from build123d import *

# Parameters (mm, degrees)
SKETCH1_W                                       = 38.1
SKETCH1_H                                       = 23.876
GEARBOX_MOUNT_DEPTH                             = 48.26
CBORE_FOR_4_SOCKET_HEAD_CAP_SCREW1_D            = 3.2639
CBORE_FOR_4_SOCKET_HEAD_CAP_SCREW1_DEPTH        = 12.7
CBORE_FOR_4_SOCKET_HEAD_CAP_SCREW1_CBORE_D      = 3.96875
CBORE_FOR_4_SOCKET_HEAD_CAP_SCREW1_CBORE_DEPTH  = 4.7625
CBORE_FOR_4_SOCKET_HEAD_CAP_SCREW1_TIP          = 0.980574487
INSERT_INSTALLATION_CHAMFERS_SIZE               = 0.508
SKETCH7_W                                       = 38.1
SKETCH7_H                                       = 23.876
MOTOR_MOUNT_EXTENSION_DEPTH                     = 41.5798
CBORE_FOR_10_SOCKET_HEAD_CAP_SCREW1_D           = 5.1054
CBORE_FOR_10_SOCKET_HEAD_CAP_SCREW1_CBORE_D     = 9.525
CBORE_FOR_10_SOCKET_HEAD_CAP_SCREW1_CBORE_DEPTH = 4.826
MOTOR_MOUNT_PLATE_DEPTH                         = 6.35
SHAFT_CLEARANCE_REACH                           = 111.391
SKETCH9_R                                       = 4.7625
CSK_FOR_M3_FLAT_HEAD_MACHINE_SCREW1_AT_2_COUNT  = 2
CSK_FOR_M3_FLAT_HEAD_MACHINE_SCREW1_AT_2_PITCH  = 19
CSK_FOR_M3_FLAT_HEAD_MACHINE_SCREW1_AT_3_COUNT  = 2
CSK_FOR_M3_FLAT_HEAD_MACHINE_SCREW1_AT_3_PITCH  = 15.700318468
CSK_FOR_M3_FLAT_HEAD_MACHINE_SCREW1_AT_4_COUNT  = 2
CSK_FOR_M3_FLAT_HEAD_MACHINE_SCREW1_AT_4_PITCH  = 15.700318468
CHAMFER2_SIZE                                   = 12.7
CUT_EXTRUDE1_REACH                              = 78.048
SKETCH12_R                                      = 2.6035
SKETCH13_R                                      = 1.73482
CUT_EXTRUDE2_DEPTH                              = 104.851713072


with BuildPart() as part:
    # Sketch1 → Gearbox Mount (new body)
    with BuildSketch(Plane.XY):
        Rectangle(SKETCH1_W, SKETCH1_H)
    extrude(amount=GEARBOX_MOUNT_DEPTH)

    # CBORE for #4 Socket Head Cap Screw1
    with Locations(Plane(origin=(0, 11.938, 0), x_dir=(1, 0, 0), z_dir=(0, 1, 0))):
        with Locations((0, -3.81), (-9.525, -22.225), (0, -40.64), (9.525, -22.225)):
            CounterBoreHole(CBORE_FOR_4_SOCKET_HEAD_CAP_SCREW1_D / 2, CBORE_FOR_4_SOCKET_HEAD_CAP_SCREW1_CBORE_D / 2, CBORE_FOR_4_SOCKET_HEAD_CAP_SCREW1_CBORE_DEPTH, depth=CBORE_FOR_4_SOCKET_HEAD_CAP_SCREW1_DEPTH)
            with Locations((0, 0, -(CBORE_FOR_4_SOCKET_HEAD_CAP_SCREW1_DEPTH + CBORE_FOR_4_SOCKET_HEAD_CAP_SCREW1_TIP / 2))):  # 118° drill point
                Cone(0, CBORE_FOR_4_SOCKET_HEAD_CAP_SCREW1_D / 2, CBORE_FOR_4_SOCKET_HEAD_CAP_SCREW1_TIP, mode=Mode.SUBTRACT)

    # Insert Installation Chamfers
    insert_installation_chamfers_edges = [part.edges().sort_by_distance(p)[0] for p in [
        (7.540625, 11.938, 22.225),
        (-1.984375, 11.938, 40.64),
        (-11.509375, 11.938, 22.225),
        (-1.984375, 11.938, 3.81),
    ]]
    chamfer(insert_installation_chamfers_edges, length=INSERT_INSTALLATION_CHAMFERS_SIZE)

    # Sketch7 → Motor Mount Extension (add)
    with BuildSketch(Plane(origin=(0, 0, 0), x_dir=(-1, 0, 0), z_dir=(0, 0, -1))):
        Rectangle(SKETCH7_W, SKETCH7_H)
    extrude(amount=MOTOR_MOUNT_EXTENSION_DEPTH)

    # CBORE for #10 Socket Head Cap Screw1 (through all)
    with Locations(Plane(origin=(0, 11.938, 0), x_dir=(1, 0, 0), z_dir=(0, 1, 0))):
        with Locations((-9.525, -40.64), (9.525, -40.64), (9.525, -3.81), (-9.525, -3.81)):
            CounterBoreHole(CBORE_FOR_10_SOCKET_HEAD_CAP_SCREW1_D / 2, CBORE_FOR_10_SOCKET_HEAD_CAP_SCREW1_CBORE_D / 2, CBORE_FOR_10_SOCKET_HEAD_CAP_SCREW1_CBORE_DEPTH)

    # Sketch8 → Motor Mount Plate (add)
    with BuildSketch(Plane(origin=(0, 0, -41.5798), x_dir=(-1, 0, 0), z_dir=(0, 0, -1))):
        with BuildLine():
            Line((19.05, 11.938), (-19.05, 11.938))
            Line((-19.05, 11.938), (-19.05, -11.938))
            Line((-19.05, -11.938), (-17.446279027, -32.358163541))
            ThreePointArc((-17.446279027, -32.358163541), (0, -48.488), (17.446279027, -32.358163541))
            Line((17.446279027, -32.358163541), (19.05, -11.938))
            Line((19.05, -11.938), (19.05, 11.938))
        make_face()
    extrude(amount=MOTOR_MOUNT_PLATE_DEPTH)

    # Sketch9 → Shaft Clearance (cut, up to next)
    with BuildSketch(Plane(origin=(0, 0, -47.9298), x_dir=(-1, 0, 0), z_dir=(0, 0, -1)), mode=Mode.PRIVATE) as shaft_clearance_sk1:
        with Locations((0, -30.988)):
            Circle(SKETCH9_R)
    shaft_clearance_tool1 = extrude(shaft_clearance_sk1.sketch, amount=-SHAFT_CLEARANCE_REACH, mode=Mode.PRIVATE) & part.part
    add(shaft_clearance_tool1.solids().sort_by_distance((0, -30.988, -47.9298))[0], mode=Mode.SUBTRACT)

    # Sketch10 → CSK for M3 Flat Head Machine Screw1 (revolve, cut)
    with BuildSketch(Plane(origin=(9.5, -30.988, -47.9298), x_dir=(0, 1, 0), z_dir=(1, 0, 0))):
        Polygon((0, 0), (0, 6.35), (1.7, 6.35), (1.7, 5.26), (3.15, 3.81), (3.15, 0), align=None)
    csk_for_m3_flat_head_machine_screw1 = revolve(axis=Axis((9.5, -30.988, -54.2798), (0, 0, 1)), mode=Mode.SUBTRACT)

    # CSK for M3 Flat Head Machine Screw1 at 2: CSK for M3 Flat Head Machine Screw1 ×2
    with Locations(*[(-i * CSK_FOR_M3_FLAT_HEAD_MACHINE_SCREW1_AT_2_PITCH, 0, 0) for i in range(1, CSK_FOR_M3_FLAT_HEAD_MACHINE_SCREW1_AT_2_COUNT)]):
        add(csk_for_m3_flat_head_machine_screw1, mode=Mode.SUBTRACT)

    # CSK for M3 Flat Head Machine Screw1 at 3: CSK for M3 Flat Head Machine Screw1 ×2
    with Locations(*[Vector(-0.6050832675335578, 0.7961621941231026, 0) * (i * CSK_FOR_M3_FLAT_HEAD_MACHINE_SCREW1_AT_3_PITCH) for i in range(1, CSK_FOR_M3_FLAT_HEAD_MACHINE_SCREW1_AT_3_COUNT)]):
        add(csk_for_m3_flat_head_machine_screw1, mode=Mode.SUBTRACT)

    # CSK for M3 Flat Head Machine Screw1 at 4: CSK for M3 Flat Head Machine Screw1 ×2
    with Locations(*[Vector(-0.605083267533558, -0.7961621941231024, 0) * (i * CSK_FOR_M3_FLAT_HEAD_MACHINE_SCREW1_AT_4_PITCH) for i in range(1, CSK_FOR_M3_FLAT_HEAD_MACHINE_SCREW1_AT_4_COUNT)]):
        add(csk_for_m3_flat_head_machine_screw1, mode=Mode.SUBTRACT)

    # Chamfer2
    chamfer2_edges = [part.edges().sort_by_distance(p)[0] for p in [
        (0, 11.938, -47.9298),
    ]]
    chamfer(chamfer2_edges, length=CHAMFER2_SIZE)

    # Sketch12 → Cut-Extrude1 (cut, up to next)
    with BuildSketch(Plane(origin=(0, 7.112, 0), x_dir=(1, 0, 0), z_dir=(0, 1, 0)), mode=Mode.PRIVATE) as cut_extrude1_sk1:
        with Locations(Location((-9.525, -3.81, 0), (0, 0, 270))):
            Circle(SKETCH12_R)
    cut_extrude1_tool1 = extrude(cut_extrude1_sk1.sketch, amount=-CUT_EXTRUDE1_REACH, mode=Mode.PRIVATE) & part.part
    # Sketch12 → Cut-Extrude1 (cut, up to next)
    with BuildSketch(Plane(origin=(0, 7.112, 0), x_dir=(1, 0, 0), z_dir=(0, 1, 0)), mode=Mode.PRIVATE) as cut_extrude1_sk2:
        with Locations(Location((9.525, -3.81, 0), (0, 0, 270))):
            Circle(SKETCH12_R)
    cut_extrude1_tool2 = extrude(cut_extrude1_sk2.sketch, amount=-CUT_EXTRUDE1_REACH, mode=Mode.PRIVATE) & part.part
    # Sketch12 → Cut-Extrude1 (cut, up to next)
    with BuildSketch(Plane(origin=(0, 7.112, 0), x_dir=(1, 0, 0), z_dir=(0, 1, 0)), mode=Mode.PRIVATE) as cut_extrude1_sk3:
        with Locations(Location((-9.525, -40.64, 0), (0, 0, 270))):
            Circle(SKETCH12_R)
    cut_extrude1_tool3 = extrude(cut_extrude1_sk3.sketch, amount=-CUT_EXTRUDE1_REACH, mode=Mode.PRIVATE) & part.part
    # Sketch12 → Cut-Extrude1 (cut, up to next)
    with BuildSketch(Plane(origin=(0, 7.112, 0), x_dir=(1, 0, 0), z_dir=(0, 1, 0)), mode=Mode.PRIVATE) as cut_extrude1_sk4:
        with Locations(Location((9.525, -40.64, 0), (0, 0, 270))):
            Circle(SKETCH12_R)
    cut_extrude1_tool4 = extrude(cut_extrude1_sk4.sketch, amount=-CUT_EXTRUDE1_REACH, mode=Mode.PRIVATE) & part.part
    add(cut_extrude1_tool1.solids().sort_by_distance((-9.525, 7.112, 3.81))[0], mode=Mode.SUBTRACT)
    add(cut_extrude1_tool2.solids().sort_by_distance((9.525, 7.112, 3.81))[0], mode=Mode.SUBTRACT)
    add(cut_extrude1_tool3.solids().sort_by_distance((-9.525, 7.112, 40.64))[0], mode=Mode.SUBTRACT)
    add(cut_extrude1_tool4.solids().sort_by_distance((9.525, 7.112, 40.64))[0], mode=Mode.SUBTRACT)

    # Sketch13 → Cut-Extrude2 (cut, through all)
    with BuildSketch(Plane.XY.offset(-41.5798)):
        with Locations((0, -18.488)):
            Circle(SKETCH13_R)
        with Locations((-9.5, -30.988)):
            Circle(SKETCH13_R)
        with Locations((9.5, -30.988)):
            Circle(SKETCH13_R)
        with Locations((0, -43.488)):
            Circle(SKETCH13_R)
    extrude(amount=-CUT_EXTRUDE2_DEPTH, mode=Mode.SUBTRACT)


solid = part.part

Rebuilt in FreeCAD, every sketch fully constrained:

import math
import FreeCAD as App
import Part
import Sketcher
from FreeCAD import Vector
Q = App.Units.Quantity


def edges_at(feature, points):
    """Names of the edges that pass closest to the given points."""
    edges = feature.Shape.Edges
    near = lambda p: min(range(len(edges)), key=lambda i: edges[i].distToShape(Part.Vertex(*p))[0])
    return sorted({f"Edge{near(p) + 1}" for p in points})


def add_polygon(sketch, points):
    """Adds a closed chain of lines whose ends are joined by coincident constraints."""
    first, n = sketch.GeometryCount, len(points)
    for a, b in zip(points, points[1:] + points[:1]):
        sketch.addGeometry(Part.LineSegment(App.Vector(*a, 0), App.Vector(*b, 0)), False)
    for i in range(n):
        sketch.addConstraint(Sketcher.Constraint("Coincident", first + i, 2, first + (i + 1) % n, 1))

doc = App.newDocument("Part")
body = doc.addObject("PartDesign::Body", "Body")

# Sketch on XY plane
sketch1 = body.newObject("Sketcher::SketchObject", "Sketch")
sketch1.AttachmentSupport = (doc.getObject("XY_Plane"), [""])
sketch1.MapMode = "FlatFace"
add_polygon(sketch1, [(-19.05, 11.938), (-19.05, -11.938), (19.05, -11.938), (19.05, 11.938)])  # lines 0-3
sketch1.addConstraint([
    Sketcher.Constraint("Vertical", 0),
    Sketcher.Constraint("Horizontal", 1),
    Sketcher.Constraint("Vertical", 2),
    Sketcher.Constraint("Horizontal", 3),
    Sketcher.Constraint("Symmetric", 0, 2, 2, 2, -1, 1),
    Sketcher.Constraint("DistanceX", 1, 1, 1, 2, Q("1.5 in")),
    Sketcher.Constraint("DistanceY", 0, 2, 0, 1, Q("0.94 in")),
])
pad1 = body.newObject("PartDesign::Pad", "Pad")
pad1.Profile = sketch1
pad1.Length = Q("1.9 in")

# Sketch on XZ plane
sketch2 = body.newObject("Sketcher::SketchObject", "Sketch001")
sketch2.AttachmentSupport = (doc.getObject("XZ_Plane"), [""])
sketch2.MapMode = "FlatFace"
sketch2.AttachmentOffset = App.Placement(Vector(0, 0, -0.47 * 25.4), App.Rotation())
sketch2.addGeometry([
    Part.Circle(Vector(0, 3.81, 0), Vector(0, 0, 1), 1.63195),
    Part.Circle(Vector(-9.525, 22.225, 0), Vector(0, 0, 1), 1.63195),
    Part.Circle(Vector(0, 40.64, 0), Vector(0, 0, 1), 1.63195),
    Part.Circle(Vector(9.525, 22.225, 0), Vector(0, 0, 1), 1.63195),
], False)
sketch2.addConstraint([
    Sketcher.Constraint("Equal", 0, 1),
    Sketcher.Constraint("Equal", 1, 2),
    Sketcher.Constraint("Equal", 2, 3),
    Sketcher.Constraint("Symmetric", 1, 3, 3, 3, -2),
    Sketcher.Constraint("PointOnObject", 0, 3, -2),
    Sketcher.Constraint("PointOnObject", 2, 3, -2),
    Sketcher.Constraint("Diameter", 0, Q("0.1285 in")),
    Sketcher.Constraint("DistanceY", -1, 1, 2, 3, Q("1.6 in")),
    Sketcher.Constraint("DistanceY", -1, 1, 0, 3, Q("0.15 in")),
    Sketcher.Constraint("DistanceX", 1, 3, 3, 3, Q("0.75 in")),
    Sketcher.Constraint("DistanceY", -1, 1, 1, 3, Q("0.875 in")),
])
doc.recompute()
hole = body.newObject("PartDesign::Hole", "Hole")
hole.Profile = sketch2
hole.ThreadType = "None"
hole.Diameter = Q("0.1285 in")
hole.DepthType = "Dimension"
hole.Depth = Q("0.5 in")
hole.DrillPoint = "Angled"
hole.DrillPointAngle = 118
hole.HoleCutType = "Counterbore"
hole.HoleCutDiameter = Q("0.15625 in")
hole.HoleCutDepth = Q("0.1875 in")
hole.Reversed = True
doc.recompute()

chamfer = body.newObject("PartDesign::Chamfer", "Chamfer")
chamfer.Base = (hole, edges_at(hole, [
    (7.541, 11.938, 22.225),
    (-1.984, 11.938, 40.64),
    (-11.509, 11.938, 22.225),
    (-1.984, 11.938, 3.81),
]))
chamfer.Size = Q("0.02 in")

# Sketch on XY plane
sketch3 = body.newObject("Sketcher::SketchObject", "Sketch002")
sketch3.AttachmentSupport = (doc.getObject("XY_Plane"), [""])
sketch3.MapMode = "FlatFace"
add_polygon(sketch3, [(19.05, 11.938), (19.05, -11.938), (-19.05, -11.938), (-19.05, 11.938)])  # lines 0-3
sketch3.addConstraint([
    Sketcher.Constraint("Vertical", 0),
    Sketcher.Constraint("Horizontal", 1),
    Sketcher.Constraint("Vertical", 2),
    Sketcher.Constraint("Horizontal", 3),
    Sketcher.Constraint("Symmetric", 0, 2, 2, 2, -1, 1),
    Sketcher.Constraint("DistanceX", 1, 2, 1, 1, Q("1.5 in")),
    Sketcher.Constraint("DistanceY", 0, 2, 0, 1, Q("0.94 in")),
])
pad2 = body.newObject("PartDesign::Pad", "Pad001")
pad2.Profile = sketch3
pad2.Length = Q("1.637 in")
pad2.Reversed = True

# Sketch on XZ plane
sketch4 = body.newObject("Sketcher::SketchObject", "Sketch003")
sketch4.AttachmentSupport = (doc.getObject("XZ_Plane"), [""])
sketch4.MapMode = "FlatFace"
sketch4.AttachmentOffset = App.Placement(Vector(0, 0, -0.47 * 25.4), App.Rotation())
sketch4.addGeometry([
    Part.Circle(Vector(-9.525, 40.64, 0), Vector(0, 0, 1), 2.5527),
    Part.Circle(Vector(9.525, 40.64, 0), Vector(0, 0, 1), 2.5527),
    Part.Circle(Vector(9.525, 3.81, 0), Vector(0, 0, 1), 2.5527),
    Part.Circle(Vector(-9.525, 3.81, 0), Vector(0, 0, 1), 2.5527),
], False)
sketch4.addConstraint([
    Sketcher.Constraint("Equal", 0, 1),
    Sketcher.Constraint("Equal", 1, 2),
    Sketcher.Constraint("Equal", 2, 3),
    Sketcher.Constraint("Symmetric", 0, 3, 1, 3, -2),
    Sketcher.Constraint("Symmetric", 2, 3, 3, 3, -2),
    Sketcher.Constraint("Vertical", 1, 3, 2, 3),
    Sketcher.Constraint("Diameter", 0, Q("0.201 in")),
    Sketcher.Constraint("DistanceY", -1, 1, 0, 3, Q("1.6 in")),
    Sketcher.Constraint("DistanceY", -1, 1, 2, 3, Q("0.15 in")),
    Sketcher.Constraint("DistanceX", 0, 3, 1, 3, Q("0.75 in")),
])
doc.recompute()
hole2 = body.newObject("PartDesign::Hole", "Hole001")
hole2.Profile = sketch4
hole2.ThreadType = "None"
hole2.Diameter = Q("0.201 in")
hole2.DepthType = "ThroughAll"
hole2.HoleCutType = "Counterbore"
hole2.HoleCutDiameter = Q("0.375 in")
hole2.HoleCutDepth = Q("0.19 in")
hole2.Reversed = True

# Sketch on XY plane
sketch5 = body.newObject("Sketcher::SketchObject", "Sketch004")
sketch5.AttachmentSupport = (doc.getObject("XY_Plane"), [""])
sketch5.MapMode = "FlatFace"
sketch5.AttachmentOffset = App.Placement(Vector(0, 0, -1.637 * 25.4), App.Rotation())
sketch5.addGeometry([
    Part.LineSegment(Vector(-19.05, 11.938, 0), Vector(19.05, 11.938, 0)),  # 0
    Part.LineSegment(Vector(19.05, 11.938, 0), Vector(19.05, -11.938, 0)),  # 1
    Part.LineSegment(Vector(19.05, -11.938, 0), Vector(17.446279, -32.358164, 0)),  # 2
    Part.ArcOfCircle(Part.Circle(Vector(0, -30.988, 0), Vector(0, 0, 1), 17.5), math.radians(-175.509428), math.radians(-4.490572)),  # 3
    Part.LineSegment(Vector(-17.446279, -32.358164, 0), Vector(-19.05, -11.938, 0)),  # 4
    Part.LineSegment(Vector(-19.05, -11.938, 0), Vector(-19.05, 11.938, 0)),  # 5
], False)
sketch5.addConstraint([
    Sketcher.Constraint("Coincident", 0, 2, 1, 1),
    Sketcher.Constraint("Coincident", 1, 2, 2, 1),
    Sketcher.Constraint("Tangent", 2, 2, 3, 2),
    Sketcher.Constraint("Tangent", 3, 1, 4, 1),
    Sketcher.Constraint("Coincident", 4, 2, 5, 1),
    Sketcher.Constraint("Coincident", 5, 2, 0, 1),
    Sketcher.Constraint("Horizontal", 0),
    Sketcher.Constraint("Vertical", 1),
    Sketcher.Constraint("Vertical", 5),
    Sketcher.Constraint("Symmetric", 0, 2, 4, 2, -1, 1),
    Sketcher.Constraint("Symmetric", 2, 2, 3, 1, -2),
    Sketcher.Constraint("DistanceX", 0, 1, 0, 2, Q("1.5 in")),
    Sketcher.Constraint("DistanceY", 1, 2, 1, 1, Q("0.94 in")),
    Sketcher.Constraint("DistanceY", 3, 3, -1, 1, Q("1.22 in")),
    Sketcher.Constraint("Radius", 3, Q("17.5 mm")),
])
pad3 = body.newObject("PartDesign::Pad", "Pad002")
pad3.Profile = sketch5
pad3.Length = Q("0.25 in")
pad3.Reversed = True

# Sketch on XY plane
sketch6 = body.newObject("Sketcher::SketchObject", "Sketch005")
sketch6.AttachmentSupport = (doc.getObject("XY_Plane"), [""])
sketch6.MapMode = "FlatFace"
sketch6.AttachmentOffset = App.Placement(Vector(0, 0, -1.887 * 25.4), App.Rotation())
sketch6.addGeometry(Part.Circle(Vector(0, -30.988, 0), Vector(0, 0, 1), 4.7625), False)
sketch6.addConstraint([
    Sketcher.Constraint("PointOnObject", 0, 3, -2),
    Sketcher.Constraint("Diameter", 0, Q("0.375 in")),
    Sketcher.Constraint("DistanceY", 0, 3, -1, 1, Q("1.22 in")),
])
pocket1 = body.newObject("PartDesign::Pocket", "Pocket")
pocket1.Profile = sketch6
pocket1.Type = "UpToFirst"
pocket1.Reversed = True

# Sketch on YZ plane
sketch7 = body.newObject("Sketcher::SketchObject", "Sketch006")
sketch7.AttachmentSupport = (doc.getObject("YZ_Plane"), [""])
sketch7.MapMode = "FlatFace"
sketch7.AttachmentOffset = App.Placement(Vector(0, 0, 9.5), App.Rotation())
add_polygon(sketch7, [(-30.988, -41.5798), (-30.988, -47.9298), (-27.838, -47.9298), (-27.838, -44.1198), (-29.288, -42.6698), (-29.288, -41.5798)])  # lines 0-5
sketch7.addGeometry(Part.LineSegment(Vector(-30.988, -47.9298, 0), Vector(-30.988, -41.5798, 0)), True)  # axis
sketch7.addConstraint([
    Sketcher.Constraint("Vertical", 0),
    Sketcher.Constraint("Horizontal", 1),
    Sketcher.Constraint("Vertical", 2),
    Sketcher.Constraint("Vertical", 4),
    Sketcher.Constraint("Horizontal", 5),
    Sketcher.Constraint("Vertical", 6),
    Sketcher.Constraint("Coincident", 6, 1, 0, 2),
    Sketcher.Constraint("Horizontal", 4, 2, 6, 2),
    Sketcher.Constraint("Angle", 3, Q("135 deg")),
    Sketcher.Constraint("DistanceY", 0, 2, 0, 1, Q("0.25 in")),
    Sketcher.Constraint("DistanceY", 2, 1, 2, 2, Q("0.15 in")),
    Sketcher.Constraint("DistanceX", 0, 2, -1, 1, Q("1.22 in")),
    Sketcher.Constraint("DistanceY", 0, 2, -1, 1, Q("1.887 in")),
    Sketcher.Constraint("DistanceX", 1, 1, 1, 2, Q("3.15 mm")),
    Sketcher.Constraint("DistanceX", 5, 2, 5, 1, Q("1.7 mm")),
])
groove = body.newObject("PartDesign::Groove", "Groove")
groove.Profile = sketch7
groove.ReferenceAxis = (sketch7, ["Axis0"])
groove.Angle = 360
doc.recompute()

linearpattern = body.newObject("PartDesign::LinearPattern", "LinearPattern")
linearpattern.Originals = [groove]
linearpattern.Direction = (doc.getObject("X_Axis"), [""])
linearpattern.Mode = "offset"
linearpattern.Offset = 19
linearpattern.Occurrences = 2
linearpattern.Reversed = True
body.Tip = linearpattern
doc.recompute()

datumline = body.newObject("PartDesign::Line", "DatumLine")
datumline.Placement = App.Placement(Vector(0, 0, 0), App.Rotation(Vector(0, 0, 1), Vector(-0.605083268, 0.796162194, 0)))
linearpattern2 = body.newObject("PartDesign::LinearPattern", "LinearPattern001")
linearpattern2.Originals = [groove]
linearpattern2.Direction = (datumline, [""])
linearpattern2.Mode = "offset"
linearpattern2.Offset = 15.700318
linearpattern2.Occurrences = 2
body.Tip = linearpattern2
doc.recompute()

datumline2 = body.newObject("PartDesign::Line", "DatumLine001")
datumline2.Placement = App.Placement(Vector(0, 0, 0), App.Rotation(Vector(0, 0, 1), Vector(-0.605083268, -0.796162194, 0)))
linearpattern3 = body.newObject("PartDesign::LinearPattern", "LinearPattern002")
linearpattern3.Originals = [groove]
linearpattern3.Direction = (datumline2, [""])
linearpattern3.Mode = "offset"
linearpattern3.Offset = 15.700318
linearpattern3.Occurrences = 2
body.Tip = linearpattern3
doc.recompute()

chamfer2 = body.newObject("PartDesign::Chamfer", "Chamfer001")
chamfer2.Base = (linearpattern3, edges_at(linearpattern3, [(0, 11.938, -47.93)]))
chamfer2.Size = Q("0.5 in")

# Sketch on XZ plane
sketch8 = body.newObject("Sketcher::SketchObject", "Sketch007")
sketch8.AttachmentSupport = (doc.getObject("XZ_Plane"), [""])
sketch8.MapMode = "FlatFace"
sketch8.AttachmentOffset = App.Placement(Vector(0, 0, -0.28 * 25.4), App.Rotation())
sketch8.addGeometry(Part.Circle(Vector(-9.525, 3.81, 0), Vector(0, 0, 1), 2.6035), False)
sketch8.addConstraint([
    Sketcher.Constraint("Diameter", 0, Q("0.205 in")),
    Sketcher.Constraint("DistanceY", -1, 1, 0, 3, Q("0.15 in")),
    Sketcher.Constraint("DistanceX", 0, 3, -1, 1, Q("0.375 in")),
])
pocket2 = body.newObject("PartDesign::Pocket", "Pocket001")
pocket2.Profile = sketch8
pocket2.Length = Q("0.75 in")
pocket2.Reversed = True

# Sketch on XZ plane
sketch9 = body.newObject("Sketcher::SketchObject", "Sketch008")
sketch9.AttachmentSupport = (doc.getObject("XZ_Plane"), [""])
sketch9.MapMode = "FlatFace"
sketch9.AttachmentOffset = App.Placement(Vector(0, 0, -0.28 * 25.4), App.Rotation())
sketch9.addGeometry(Part.Circle(Vector(9.525, 3.81, 0), Vector(0, 0, 1), 2.6035), False)
sketch9.addConstraint([
    Sketcher.Constraint("Diameter", 0, Q("0.205 in")),
    Sketcher.Constraint("DistanceY", -1, 1, 0, 3, Q("0.15 in")),
    Sketcher.Constraint("DistanceX", -1, 1, 0, 3, Q("0.375 in")),
])
pocket3 = body.newObject("PartDesign::Pocket", "Pocket002")
pocket3.Profile = sketch9
pocket3.Length = Q("0.75 in")
pocket3.Reversed = True

# Sketch on XZ plane
sketch10 = body.newObject("Sketcher::SketchObject", "Sketch009")
sketch10.AttachmentSupport = (doc.getObject("XZ_Plane"), [""])
sketch10.MapMode = "FlatFace"
sketch10.AttachmentOffset = App.Placement(Vector(0, 0, -0.28 * 25.4), App.Rotation())
sketch10.addGeometry(Part.Circle(Vector(-9.525, 40.64, 0), Vector(0, 0, 1), 2.6035), False)
sketch10.addConstraint([
    Sketcher.Constraint("Diameter", 0, Q("0.205 in")),
    Sketcher.Constraint("DistanceY", -1, 1, 0, 3, Q("1.6 in")),
    Sketcher.Constraint("DistanceX", 0, 3, -1, 1, Q("0.375 in")),
])
pocket4 = body.newObject("PartDesign::Pocket", "Pocket003")
pocket4.Profile = sketch10
pocket4.Length = Q("0.75 in")
pocket4.Reversed = True

# Sketch on XZ plane
sketch11 = body.newObject("Sketcher::SketchObject", "Sketch010")
sketch11.AttachmentSupport = (doc.getObject("XZ_Plane"), [""])
sketch11.MapMode = "FlatFace"
sketch11.AttachmentOffset = App.Placement(Vector(0, 0, -0.28 * 25.4), App.Rotation())
sketch11.addGeometry(Part.Circle(Vector(9.525, 40.64, 0), Vector(0, 0, 1), 2.6035), False)
sketch11.addConstraint([
    Sketcher.Constraint("Diameter", 0, Q("0.205 in")),
    Sketcher.Constraint("DistanceY", -1, 1, 0, 3, Q("1.6 in")),
    Sketcher.Constraint("DistanceX", -1, 1, 0, 3, Q("0.375 in")),
])
pocket5 = body.newObject("PartDesign::Pocket", "Pocket004")
pocket5.Profile = sketch11
pocket5.Length = Q("0.75 in")
pocket5.Reversed = True

# Sketch on XY plane
sketch12 = body.newObject("Sketcher::SketchObject", "Sketch011")
sketch12.AttachmentSupport = (doc.getObject("XY_Plane"), [""])
sketch12.MapMode = "FlatFace"
sketch12.AttachmentOffset = App.Placement(Vector(0, 0, -1.637 * 25.4), App.Rotation())
sketch12.addGeometry([
    Part.Circle(Vector(0, -18.488, 0), Vector(0, 0, 1), 1.73482),
    Part.Circle(Vector(-9.5, -30.988, 0), Vector(0, 0, 1), 1.73482),
    Part.Circle(Vector(9.5, -30.988, 0), Vector(0, 0, 1), 1.73482),
    Part.Circle(Vector(0, -43.488, 0), Vector(0, 0, 1), 1.73482),
], False)
sketch12.addConstraint([
    Sketcher.Constraint("Equal", 0, 1),
    Sketcher.Constraint("Equal", 1, 2),
    Sketcher.Constraint("Equal", 2, 3),
    Sketcher.Constraint("Symmetric", 1, 3, 2, 3, -2),
    Sketcher.Constraint("PointOnObject", 0, 3, -2),
    Sketcher.Constraint("PointOnObject", 3, 3, -2),
    Sketcher.Constraint("Diameter", 0, Q("0.1366 in")),
    Sketcher.Constraint("DistanceY", 1, 3, -1, 1, Q("1.22 in")),
    Sketcher.Constraint("DistanceY", 0, 3, -1, 1, Q("18.488 mm")),
    Sketcher.Constraint("DistanceX", 1, 3, -1, 1, Q("9.5 mm")),
    Sketcher.Constraint("DistanceY", 3, 3, -1, 1, Q("43.488 mm")),
])
pocket6 = body.newObject("PartDesign::Pocket", "Pocket005")
pocket6.Profile = sketch12
pocket6.Type = "ThroughAll"

doc.recompute()
